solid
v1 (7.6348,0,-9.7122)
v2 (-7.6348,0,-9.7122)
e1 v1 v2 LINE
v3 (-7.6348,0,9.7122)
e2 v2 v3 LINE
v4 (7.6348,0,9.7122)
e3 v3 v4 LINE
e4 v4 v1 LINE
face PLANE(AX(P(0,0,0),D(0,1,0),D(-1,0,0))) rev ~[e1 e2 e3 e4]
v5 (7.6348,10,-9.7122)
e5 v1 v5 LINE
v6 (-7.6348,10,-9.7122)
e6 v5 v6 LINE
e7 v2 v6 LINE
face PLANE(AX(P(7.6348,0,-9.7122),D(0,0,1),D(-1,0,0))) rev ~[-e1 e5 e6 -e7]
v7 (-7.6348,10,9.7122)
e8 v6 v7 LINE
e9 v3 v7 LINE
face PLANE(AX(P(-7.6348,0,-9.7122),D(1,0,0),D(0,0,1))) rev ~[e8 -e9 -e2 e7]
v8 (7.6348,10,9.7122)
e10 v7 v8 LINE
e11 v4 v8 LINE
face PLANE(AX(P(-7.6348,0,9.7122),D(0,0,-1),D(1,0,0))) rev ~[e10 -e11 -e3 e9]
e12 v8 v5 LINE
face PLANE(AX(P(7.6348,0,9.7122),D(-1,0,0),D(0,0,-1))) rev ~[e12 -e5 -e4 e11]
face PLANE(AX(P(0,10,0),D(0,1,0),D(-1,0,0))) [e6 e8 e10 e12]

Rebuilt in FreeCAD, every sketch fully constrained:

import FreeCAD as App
import Part
import Sketcher

V = App.Vector
Q = App.Units.Quantity

doc = App.newDocument("Part")
body = doc.addObject("PartDesign::Body", "Body")

sketch1 = body.newObject("Sketcher::SketchObject", "Sketch")
sketch1.AttachmentSupport = (doc.getObject("XZ_Plane"), [""])
sketch1.MapMode = "FlatFace"
sketch1.addGeometry([
    Part.LineSegment(V(-8, -10, 0), V(-8, 10, 0)),
    Part.LineSegment(V(-8, 10, 0), V(8, 10, 0)),
    Part.LineSegment(V(8, 10, 0), V(8, -10, 0)),
    Part.LineSegment(V(8, -10, 0), V(-8, -10, 0)),
], False)
sketch1.addConstraint([
    Sketcher.Constraint("Coincident", 0, 2, 1, 1),
    Sketcher.Constraint("Coincident", 1, 2, 2, 1),
    Sketcher.Constraint("Coincident", 2, 2, 3, 1),
    Sketcher.Constraint("Coincident", 3, 2, 0, 1),
    Sketcher.Constraint("Vertical", 0),
    Sketcher.Constraint("Horizontal", 1),
    Sketcher.Constraint("Vertical", 2),
    Sketcher.Constraint("Horizontal", 3),
    Sketcher.Constraint("Symmetric", 0, 2, 2, 2, -1, 1),
    Sketcher.Constraint("DistanceX", 1, 1, 1, 2, Q("15.2696 mm")),
    Sketcher.Constraint("DistanceY", 0, 1, 0, 2, Q("19.4244 mm")),
])
pad1 = body.newObject("PartDesign::Pad", "Pad")
pad1.Profile = sketch1
pad1.Length = 10
pad1.Reversed = True

doc.recompute()
